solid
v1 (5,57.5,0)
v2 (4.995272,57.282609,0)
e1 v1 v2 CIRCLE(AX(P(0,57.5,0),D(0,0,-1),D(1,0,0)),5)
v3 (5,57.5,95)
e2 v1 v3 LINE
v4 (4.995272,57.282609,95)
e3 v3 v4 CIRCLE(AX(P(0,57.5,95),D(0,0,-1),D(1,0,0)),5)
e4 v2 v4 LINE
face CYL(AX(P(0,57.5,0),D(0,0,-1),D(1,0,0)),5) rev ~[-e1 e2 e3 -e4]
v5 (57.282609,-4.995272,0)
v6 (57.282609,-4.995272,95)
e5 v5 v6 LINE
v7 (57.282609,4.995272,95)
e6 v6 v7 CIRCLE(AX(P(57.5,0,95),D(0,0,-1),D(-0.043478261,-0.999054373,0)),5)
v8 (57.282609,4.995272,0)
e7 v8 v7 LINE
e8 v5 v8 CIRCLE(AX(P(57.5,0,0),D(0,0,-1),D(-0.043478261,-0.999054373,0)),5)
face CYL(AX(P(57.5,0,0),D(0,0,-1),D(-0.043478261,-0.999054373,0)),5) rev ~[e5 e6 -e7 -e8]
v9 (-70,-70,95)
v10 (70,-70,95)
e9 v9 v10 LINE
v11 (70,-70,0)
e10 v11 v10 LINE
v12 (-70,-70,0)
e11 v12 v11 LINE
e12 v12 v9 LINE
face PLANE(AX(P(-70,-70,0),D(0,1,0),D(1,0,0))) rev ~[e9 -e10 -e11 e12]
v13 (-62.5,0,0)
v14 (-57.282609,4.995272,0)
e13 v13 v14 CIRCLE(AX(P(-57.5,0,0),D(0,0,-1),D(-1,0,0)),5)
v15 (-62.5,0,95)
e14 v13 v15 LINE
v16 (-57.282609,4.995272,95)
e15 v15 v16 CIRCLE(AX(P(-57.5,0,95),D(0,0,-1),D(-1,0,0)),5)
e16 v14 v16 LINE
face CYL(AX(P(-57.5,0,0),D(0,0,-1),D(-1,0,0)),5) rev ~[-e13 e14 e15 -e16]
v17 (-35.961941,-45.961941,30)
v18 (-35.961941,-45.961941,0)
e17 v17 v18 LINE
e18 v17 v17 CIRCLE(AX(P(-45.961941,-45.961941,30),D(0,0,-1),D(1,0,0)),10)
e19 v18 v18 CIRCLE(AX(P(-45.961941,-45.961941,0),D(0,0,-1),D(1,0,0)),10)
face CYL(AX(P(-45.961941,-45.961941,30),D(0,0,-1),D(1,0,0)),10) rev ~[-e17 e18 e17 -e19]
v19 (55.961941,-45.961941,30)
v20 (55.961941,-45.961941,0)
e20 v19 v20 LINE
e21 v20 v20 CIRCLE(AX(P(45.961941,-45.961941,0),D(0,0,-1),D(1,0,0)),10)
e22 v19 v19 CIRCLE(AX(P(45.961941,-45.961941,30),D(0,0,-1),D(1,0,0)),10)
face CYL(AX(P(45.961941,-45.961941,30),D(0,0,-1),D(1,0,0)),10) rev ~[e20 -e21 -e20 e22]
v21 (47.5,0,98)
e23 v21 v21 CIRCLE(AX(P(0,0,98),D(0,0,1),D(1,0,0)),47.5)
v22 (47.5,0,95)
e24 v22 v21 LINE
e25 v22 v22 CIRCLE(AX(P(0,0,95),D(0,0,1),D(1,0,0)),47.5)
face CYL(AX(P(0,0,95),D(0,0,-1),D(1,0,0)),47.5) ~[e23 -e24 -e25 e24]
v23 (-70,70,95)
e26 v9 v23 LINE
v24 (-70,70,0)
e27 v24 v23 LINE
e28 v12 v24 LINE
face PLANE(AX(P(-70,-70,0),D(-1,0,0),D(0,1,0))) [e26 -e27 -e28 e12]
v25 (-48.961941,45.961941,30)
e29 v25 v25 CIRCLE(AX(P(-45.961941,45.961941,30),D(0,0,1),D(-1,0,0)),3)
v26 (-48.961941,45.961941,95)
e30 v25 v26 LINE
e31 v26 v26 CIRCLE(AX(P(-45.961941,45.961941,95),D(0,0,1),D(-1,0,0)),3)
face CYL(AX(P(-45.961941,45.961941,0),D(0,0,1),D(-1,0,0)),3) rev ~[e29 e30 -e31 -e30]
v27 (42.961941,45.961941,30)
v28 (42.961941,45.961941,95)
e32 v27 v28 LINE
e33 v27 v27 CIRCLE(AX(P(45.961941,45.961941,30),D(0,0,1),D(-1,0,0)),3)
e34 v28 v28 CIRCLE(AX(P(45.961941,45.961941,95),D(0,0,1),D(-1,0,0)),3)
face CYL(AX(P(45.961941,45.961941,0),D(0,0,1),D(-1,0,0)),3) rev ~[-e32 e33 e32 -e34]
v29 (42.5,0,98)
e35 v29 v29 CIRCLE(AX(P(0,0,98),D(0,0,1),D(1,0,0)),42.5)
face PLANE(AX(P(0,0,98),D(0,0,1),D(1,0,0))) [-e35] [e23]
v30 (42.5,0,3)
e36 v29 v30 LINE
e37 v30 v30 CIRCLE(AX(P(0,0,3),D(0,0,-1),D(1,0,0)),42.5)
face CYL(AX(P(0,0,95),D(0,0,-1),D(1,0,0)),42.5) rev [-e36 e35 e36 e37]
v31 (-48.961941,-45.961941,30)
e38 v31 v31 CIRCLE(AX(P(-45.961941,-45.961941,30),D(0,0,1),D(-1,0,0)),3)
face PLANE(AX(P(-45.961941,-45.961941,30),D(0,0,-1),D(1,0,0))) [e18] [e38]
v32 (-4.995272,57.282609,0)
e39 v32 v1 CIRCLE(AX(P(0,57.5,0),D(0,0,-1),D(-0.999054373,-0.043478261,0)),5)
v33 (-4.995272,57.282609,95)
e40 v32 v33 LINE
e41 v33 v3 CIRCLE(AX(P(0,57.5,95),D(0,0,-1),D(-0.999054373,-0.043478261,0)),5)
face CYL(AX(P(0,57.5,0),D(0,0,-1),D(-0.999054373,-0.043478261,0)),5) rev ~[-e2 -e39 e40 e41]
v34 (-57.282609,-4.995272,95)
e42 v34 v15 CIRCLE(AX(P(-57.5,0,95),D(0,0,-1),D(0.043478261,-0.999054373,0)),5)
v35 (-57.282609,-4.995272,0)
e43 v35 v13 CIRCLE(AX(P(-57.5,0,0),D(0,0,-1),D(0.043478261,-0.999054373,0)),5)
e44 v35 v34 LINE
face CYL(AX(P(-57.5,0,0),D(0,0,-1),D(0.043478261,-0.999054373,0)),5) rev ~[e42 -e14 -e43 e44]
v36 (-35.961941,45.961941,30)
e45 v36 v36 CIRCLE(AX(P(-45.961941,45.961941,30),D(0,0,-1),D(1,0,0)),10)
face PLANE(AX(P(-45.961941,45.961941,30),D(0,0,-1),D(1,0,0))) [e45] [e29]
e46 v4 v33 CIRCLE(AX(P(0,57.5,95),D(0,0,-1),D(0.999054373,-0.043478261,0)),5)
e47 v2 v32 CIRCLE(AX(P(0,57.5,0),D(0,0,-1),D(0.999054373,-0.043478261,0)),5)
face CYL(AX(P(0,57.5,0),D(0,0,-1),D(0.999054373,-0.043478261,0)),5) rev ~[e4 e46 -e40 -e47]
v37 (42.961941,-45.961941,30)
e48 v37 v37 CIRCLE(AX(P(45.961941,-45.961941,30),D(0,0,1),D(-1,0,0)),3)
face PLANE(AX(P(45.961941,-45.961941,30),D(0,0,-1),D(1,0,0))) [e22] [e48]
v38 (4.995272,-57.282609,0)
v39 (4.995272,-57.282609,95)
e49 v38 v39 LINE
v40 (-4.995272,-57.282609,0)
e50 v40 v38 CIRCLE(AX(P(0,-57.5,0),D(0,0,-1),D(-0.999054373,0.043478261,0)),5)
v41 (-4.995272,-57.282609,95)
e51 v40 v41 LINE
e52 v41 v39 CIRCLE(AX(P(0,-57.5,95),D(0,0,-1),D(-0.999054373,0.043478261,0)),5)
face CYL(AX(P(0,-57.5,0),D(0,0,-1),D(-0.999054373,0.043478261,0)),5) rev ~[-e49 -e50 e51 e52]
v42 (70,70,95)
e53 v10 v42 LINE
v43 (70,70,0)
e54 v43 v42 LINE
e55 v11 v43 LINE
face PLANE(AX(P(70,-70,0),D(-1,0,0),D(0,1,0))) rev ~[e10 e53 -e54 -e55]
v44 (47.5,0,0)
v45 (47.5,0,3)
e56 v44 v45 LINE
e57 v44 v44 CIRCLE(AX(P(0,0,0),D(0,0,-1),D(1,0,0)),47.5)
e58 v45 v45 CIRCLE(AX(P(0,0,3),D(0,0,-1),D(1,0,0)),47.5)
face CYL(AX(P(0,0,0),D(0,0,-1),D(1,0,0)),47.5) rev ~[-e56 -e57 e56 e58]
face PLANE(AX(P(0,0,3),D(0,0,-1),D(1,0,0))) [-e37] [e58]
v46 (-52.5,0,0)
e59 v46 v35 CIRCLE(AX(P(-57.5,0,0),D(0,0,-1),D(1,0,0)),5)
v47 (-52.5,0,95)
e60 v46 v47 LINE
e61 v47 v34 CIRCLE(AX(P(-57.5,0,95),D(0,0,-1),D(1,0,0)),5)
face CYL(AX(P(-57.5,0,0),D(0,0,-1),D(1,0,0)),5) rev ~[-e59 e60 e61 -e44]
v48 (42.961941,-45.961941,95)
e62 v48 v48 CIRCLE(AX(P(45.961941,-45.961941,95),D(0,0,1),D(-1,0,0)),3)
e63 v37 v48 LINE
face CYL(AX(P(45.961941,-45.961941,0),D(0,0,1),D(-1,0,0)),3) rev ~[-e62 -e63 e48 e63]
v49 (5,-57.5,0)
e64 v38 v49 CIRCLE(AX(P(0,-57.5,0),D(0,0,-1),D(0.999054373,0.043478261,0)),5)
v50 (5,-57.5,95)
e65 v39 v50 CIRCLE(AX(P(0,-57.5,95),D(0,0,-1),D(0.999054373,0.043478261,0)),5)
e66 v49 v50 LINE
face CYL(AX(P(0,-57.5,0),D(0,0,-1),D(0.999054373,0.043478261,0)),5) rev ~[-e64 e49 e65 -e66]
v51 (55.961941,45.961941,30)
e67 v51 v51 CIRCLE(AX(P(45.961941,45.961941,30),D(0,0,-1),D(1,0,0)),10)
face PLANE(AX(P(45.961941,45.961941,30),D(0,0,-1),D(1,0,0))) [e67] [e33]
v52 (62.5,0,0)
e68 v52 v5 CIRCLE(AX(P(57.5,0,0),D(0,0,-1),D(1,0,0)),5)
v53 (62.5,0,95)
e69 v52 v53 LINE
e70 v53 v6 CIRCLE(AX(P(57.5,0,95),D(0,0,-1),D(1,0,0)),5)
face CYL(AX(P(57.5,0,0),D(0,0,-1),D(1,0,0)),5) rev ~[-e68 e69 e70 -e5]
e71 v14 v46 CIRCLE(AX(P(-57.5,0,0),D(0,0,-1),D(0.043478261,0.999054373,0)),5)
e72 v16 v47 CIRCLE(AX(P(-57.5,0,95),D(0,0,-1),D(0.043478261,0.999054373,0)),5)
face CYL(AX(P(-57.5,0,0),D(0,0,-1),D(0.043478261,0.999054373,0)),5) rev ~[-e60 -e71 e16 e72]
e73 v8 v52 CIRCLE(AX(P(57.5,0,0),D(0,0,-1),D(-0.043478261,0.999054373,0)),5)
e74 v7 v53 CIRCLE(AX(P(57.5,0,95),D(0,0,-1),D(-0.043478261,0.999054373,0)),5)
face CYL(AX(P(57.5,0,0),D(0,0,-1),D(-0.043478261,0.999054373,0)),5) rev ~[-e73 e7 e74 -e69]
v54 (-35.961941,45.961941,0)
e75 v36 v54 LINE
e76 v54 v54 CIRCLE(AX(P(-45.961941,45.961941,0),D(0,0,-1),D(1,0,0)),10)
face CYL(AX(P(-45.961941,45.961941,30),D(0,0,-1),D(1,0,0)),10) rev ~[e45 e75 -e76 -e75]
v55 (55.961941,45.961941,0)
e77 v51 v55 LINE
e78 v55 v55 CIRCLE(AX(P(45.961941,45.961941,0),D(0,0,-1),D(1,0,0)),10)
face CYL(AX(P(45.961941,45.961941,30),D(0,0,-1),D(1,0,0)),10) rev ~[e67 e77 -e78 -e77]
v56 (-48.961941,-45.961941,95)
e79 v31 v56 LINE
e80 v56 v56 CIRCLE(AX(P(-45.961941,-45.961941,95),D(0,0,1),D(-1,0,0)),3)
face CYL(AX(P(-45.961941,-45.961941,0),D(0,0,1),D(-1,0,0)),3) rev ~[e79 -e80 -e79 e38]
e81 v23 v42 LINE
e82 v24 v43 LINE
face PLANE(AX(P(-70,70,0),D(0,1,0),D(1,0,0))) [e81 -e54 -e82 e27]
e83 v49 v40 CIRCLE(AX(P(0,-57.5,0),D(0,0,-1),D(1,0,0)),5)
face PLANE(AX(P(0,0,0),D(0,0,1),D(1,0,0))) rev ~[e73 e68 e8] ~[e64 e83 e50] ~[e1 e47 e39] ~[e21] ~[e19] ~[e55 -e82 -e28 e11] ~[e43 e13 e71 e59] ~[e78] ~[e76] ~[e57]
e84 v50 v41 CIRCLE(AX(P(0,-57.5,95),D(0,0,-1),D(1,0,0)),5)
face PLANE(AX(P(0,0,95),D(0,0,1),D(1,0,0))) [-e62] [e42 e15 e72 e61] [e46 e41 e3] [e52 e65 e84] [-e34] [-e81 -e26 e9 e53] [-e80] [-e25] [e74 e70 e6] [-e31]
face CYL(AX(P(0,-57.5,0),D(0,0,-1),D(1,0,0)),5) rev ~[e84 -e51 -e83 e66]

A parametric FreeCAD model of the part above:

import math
import FreeCAD as App
import Part
import Sketcher

doc = App.newDocument("Part")
body = doc.addObject("PartDesign::Body", "Body")

# Sketch on XY plane
sketch1 = doc.addObject("Sketcher::SketchObject", "Sketch")
body.addObject(sketch1)
sketch1.AttachmentSupport = (doc.XY_Plane, [""])
sketch1.MapMode = "FlatFace"
sketch1.addGeometry(Part.LineSegment(App.Vector(-70, 70, 0), App.Vector(-70, -70, 0)), False)
sketch1.addGeometry(Part.LineSegment(App.Vector(-70, -70, 0), App.Vector(70, -70, 0)), False)
sketch1.addGeometry(Part.LineSegment(App.Vector(70, -70, 0), App.Vector(70, 70, 0)), False)
sketch1.addGeometry(Part.LineSegment(App.Vector(70, 70, 0), App.Vector(-70, 70, 0)), False)
sketch1.addGeometry(Part.Circle(App.Vector(0, 0, 0), App.Vector(0, 0, 1), 42), False)
sketch1.addConstraint(Sketcher.Constraint("Coincident", 0, 2, 1, 1))
sketch1.addConstraint(Sketcher.Constraint("Coincident", 1, 2, 2, 1))
sketch1.addConstraint(Sketcher.Constraint("Coincident", 2, 2, 3, 1))
sketch1.addConstraint(Sketcher.Constraint("Coincident", 3, 2, 0, 1))
sketch1.addConstraint(Sketcher.Constraint("Vertical", 0))
sketch1.addConstraint(Sketcher.Constraint("Horizontal", 1))
sketch1.addConstraint(Sketcher.Constraint("Vertical", 2))
sketch1.addConstraint(Sketcher.Constraint("Horizontal", 3))
sketch1.addConstraint(Sketcher.Constraint("Coincident", 4, 3, -1, 1))
sketch1.addConstraint(Sketcher.Constraint("Symmetric", 0, 2, 2, 2, -1, 1))
sketch1.addConstraint(Sketcher.Constraint("Equal", 3, 0))
sketch1.addConstraint(Sketcher.Constraint("Diameter", 4, 85.0))
sketch1.addConstraint(Sketcher.Constraint("DistanceX", 1, 1, 1, 2, 140.0))
pad1 = doc.addObject("PartDesign::Pad", "Pad")
body.addObject(pad1)
pad1.Profile = sketch1
pad1.Length = 95

# Sketch on XY plane
sketch2 = doc.addObject("Sketcher::SketchObject", "Sketch001")
body.addObject(sketch2)
sketch2.AttachmentSupport = (doc.XY_Plane, [""])
sketch2.MapMode = "FlatFace"
sketch2.AttachmentOffset = App.Placement(App.Vector(0, 0, 95), App.Rotation())
sketch2.addGeometry(Part.Circle(App.Vector(0, 0, 0), App.Vector(0, 0, 1), 48), False)
sketch2.addGeometry(Part.Circle(App.Vector(0, 0, 0), App.Vector(0, 0, 1), 42), False)
sketch2.addConstraint(Sketcher.Constraint("Coincident", 0, 3, -1, 1))
sketch2.addConstraint(Sketcher.Constraint("Coincident", 1, 3, -1, 1))
sketch2.addConstraint(Sketcher.Constraint("Diameter", 0, 95.0))
sketch2.addConstraint(Sketcher.Constraint("Diameter", 1, 85.0))
pad2 = doc.addObject("PartDesign::Pad", "Pad001")
body.addObject(pad2)
pad2.Profile = sketch2
pad2.Length = 3

# Sketch on XY plane
sketch3 = doc.addObject("Sketcher::SketchObject", "Sketch002")
body.addObject(sketch3)
sketch3.AttachmentSupport = (doc.XY_Plane, [""])
sketch3.MapMode = "FlatFace"
sketch3.addGeometry(Part.Circle(App.Vector(0, 0, 0), App.Vector(0, 0, 1), 48), False)
sketch3.addGeometry(Part.Circle(App.Vector(0, 0, 0), App.Vector(0, 0, 1), 42), False)
sketch3.addConstraint(Sketcher.Constraint("Coincident", 0, 3, -1, 1))
sketch3.addConstraint(Sketcher.Constraint("Coincident", 1, 3, -1, 1))
sketch3.addConstraint(Sketcher.Constraint("Diameter", 0, 95.0))
sketch3.addConstraint(Sketcher.Constraint("Diameter", 1, 85.0))
pocket1 = doc.addObject("PartDesign::Pocket", "Pocket")
body.addObject(pocket1)
pocket1.Profile = sketch3
pocket1.Length = 3
pocket1.Reversed = True

# Sketch on XY plane
sketch4 = doc.addObject("Sketcher::SketchObject", "Sketch003")
body.addObject(sketch4)
sketch4.AttachmentSupport = (doc.XY_Plane, [""])
sketch4.MapMode = "FlatFace"
sketch4.addGeometry(Part.ArcOfCircle(Part.Circle(App.Vector(-57.5, 0, 0), App.Vector(0, 0, 1), 5), math.radians(88), math.radians(180)), False)
sketch4.addGeometry(Part.ArcOfCircle(Part.Circle(App.Vector(-57.5, 0, 0), App.Vector(0, 0, 1), 5), math.radians(0), math.radians(88)), False)
sketch4.addGeometry(Part.ArcOfCircle(Part.Circle(App.Vector(-57.5, 0, 0), App.Vector(0, 0, 1), 5), math.radians(-88), math.radians(0)), False)
sketch4.addGeometry(Part.ArcOfCircle(Part.Circle(App.Vector(-57.5, 0, 0), App.Vector(0, 0, 1), 5), math.radians(180), math.radians(272)), False)
sketch4.addGeometry(Part.ArcOfCircle(Part.Circle(App.Vector(0, 57.5, 0), App.Vector(0, 0, 1), 5), math.radians(-178), math.radians(-2)), False)
sketch4.addGeometry(Part.ArcOfCircle(Part.Circle(App.Vector(0, 57.5, 0), App.Vector(0, 0, 1), 5), math.radians(0), math.radians(182)), False)
sketch4.addGeometry(Part.ArcOfCircle(Part.Circle(App.Vector(0, 57.5, 0), App.Vector(0, 0, 1), 5), math.radians(-2.49), math.radians(0)), False)
sketch4.addGeometry(Part.ArcOfCircle(Part.Circle(App.Vector(57.5, 0, 0), App.Vector(0, 0, 1), 5), math.radians(0), math.radians(92)), False)
sketch4.addGeometry(Part.ArcOfCircle(Part.Circle(App.Vector(57.5, 0, 0), App.Vector(0, 0, 1), 5), math.radians(-92), math.radians(0)), False)
sketch4.addGeometry(Part.ArcOfCircle(Part.Circle(App.Vector(57.5, 0, 0), App.Vector(0, 0, 1), 5), math.radians(92), math.radians(268)), False)
sketch4.addGeometry(Part.ArcOfCircle(Part.Circle(App.Vector(0, -57.5, 0), App.Vector(0, 0, 1), 5), math.radians(2), math.radians(178)), False)
sketch4.addGeometry(Part.ArcOfCircle(Part.Circle(App.Vector(0, -57.5, 0), App.Vector(0, 0, 1), 5), math.radians(0), math.radians(2.49)), False)
sketch4.addGeometry(Part.ArcOfCircle(Part.Circle(App.Vector(0, -57.5, 0), App.Vector(0, 0, 1), 5), math.radians(178), math.radians(360)), False)
sketch4.addConstraint(Sketcher.Constraint("Tangent", 0, 1, 1, 2))
sketch4.addConstraint(Sketcher.Constraint("Tangent", 1, 1, 2, 2))
sketch4.addConstraint(Sketcher.Constraint("Tangent", 2, 1, 3, 2))
sketch4.addConstraint(Sketcher.Constraint("Tangent", 3, 1, 0, 2))
sketch4.addConstraint(Sketcher.Constraint("Tangent", 4, 1, 5, 2))
sketch4.addConstraint(Sketcher.Constraint("Tangent", 5, 1, 6, 2))
sketch4.addConstraint(Sketcher.Constraint("Tangent", 6, 1, 4, 2))
sketch4.addConstraint(Sketcher.Constraint("Tangent", 7, 1, 8, 2))
sketch4.addConstraint(Sketcher.Constraint("Tangent", 8, 1, 9, 2))
sketch4.addConstraint(Sketcher.Constraint("Tangent", 9, 1, 7, 2))
sketch4.addConstraint(Sketcher.Constraint("Tangent", 10, 1, 11, 2))
sketch4.addConstraint(Sketcher.Constraint("Tangent", 11, 1, 12, 2))
sketch4.addConstraint(Sketcher.Constraint("Tangent", 12, 1, 10, 2))
sketch4.addConstraint(Sketcher.Constraint("Equal", 0, 1))
sketch4.addConstraint(Sketcher.Constraint("Equal", 3, 4))
sketch4.addConstraint(Sketcher.Constraint("Equal", 6, 7))
sketch4.addConstraint(Sketcher.Constraint("Equal", 9, 10))
sketch4.addConstraint(Sketcher.Constraint("Symmetric", 0, 3, 7, 3, -1, 1))
sketch4.addConstraint(Sketcher.Constraint("Symmetric", 4, 3, 10, 3, -1, 1))
sketch4.addConstraint(Sketcher.Constraint("Symmetric", 4, 1, 6, 1, -2))
sketch4.addConstraint(Sketcher.Constraint("Symmetric", 2, 1, 8, 1, -2))
sketch4.addConstraint(Sketcher.Constraint("PointOnObject", 1, 1, -1))
sketch4.addConstraint(Sketcher.Constraint("PointOnObject", 3, 1, -1))
sketch4.addConstraint(Sketcher.Constraint("PointOnObject", 7, 1, -1))
sketch4.addConstraint(Sketcher.Constraint("Horizontal", 6, 3, 5, 1))
sketch4.addConstraint(Sketcher.Constraint("Horizontal", 0, 1, 9, 1))
sketch4.addConstraint(Sketcher.Constraint("Horizontal", 12, 3, 11, 1))
sketch4.addConstraint(Sketcher.Constraint("Horizontal", 10, 1, 12, 1))
sketch4.addConstraint(Sketcher.Constraint("Vertical", 0, 1, 2, 1))
sketch4.addConstraint(Sketcher.Constraint("Vertical", 6, 1, 10, 1))
sketch4.addConstraint(Sketcher.Constraint("Radius", 0, 5.0))
sketch4.addConstraint(Sketcher.Constraint("DistanceX", 0, 3, 7, 3, 115.0))
sketch4.addConstraint(Sketcher.Constraint("DistanceY", -1, 1, 4, 3, 57.5))
sketch4.addConstraint(Sketcher.Constraint("DistanceX", 0, 1, -1, 1, 57.282609))
sketch4.addConstraint(Sketcher.Constraint("DistanceX", 4, 1, -1, 1, 4.995272))
pocket2 = doc.addObject("PartDesign::Pocket", "Pocket001")
body.addObject(pocket2)
pocket2.Profile = sketch4
pocket2.Type = "ThroughAll"
pocket2.Reversed = True

# Sketch on XY plane
sketch5 = doc.addObject("Sketcher::SketchObject", "Sketch004")
body.addObject(sketch5)
sketch5.AttachmentSupport = (doc.XY_Plane, [""])
sketch5.MapMode = "FlatFace"
sketch5.addGeometry(Part.Circle(App.Vector(-46, 46, 0), App.Vector(0, 0, 1), 3), False)
sketch5.addGeometry(Part.Circle(App.Vector(-46, -46, 0), App.Vector(0, 0, 1), 3), False)
sketch5.addGeometry(Part.Circle(App.Vector(46, 46, 0), App.Vector(0, 0, 1), 3), False)
sketch5.addGeometry(Part.Circle(App.Vector(46, -46, 0), App.Vector(0, 0, 1), 3), False)
sketch5.addConstraint(Sketcher.Constraint("Equal", 0, 1))
sketch5.addConstraint(Sketcher.Constraint("Equal", 1, 2))
sketch5.addConstraint(Sketcher.Constraint("Equal", 2, 3))
sketch5.addConstraint(Sketcher.Constraint("Symmetric", 1, 3, 2, 3, -1, 1))
sketch5.addConstraint(Sketcher.Constraint("Symmetric", 0, 3, 3, 3, -1, 1))
sketch5.addConstraint(Sketcher.Constraint("Symmetric", 0, 3, 2, 3, -2))
sketch5.addConstraint(Sketcher.Constraint("Diameter", 0, 6.0))
sketch5.addConstraint(Sketcher.Constraint("DistanceX", 0, 3, -1, 1, 45.961941))
sketch5.addConstraint(Sketcher.Constraint("DistanceY", -1, 1, 0, 3, 45.961941))
doc.recompute()
hole = doc.addObject("PartDesign::Hole", "Hole")
body.addObject(hole)
hole.Profile = sketch5
hole.ThreadType = "None"
hole.Diameter = 6
hole.DepthType = "ThroughAll"
hole.HoleCutType = "Counterbore"
hole.HoleCutDiameter = 20
hole.HoleCutDepth = 30
hole.Reversed = True

doc.recompute()
